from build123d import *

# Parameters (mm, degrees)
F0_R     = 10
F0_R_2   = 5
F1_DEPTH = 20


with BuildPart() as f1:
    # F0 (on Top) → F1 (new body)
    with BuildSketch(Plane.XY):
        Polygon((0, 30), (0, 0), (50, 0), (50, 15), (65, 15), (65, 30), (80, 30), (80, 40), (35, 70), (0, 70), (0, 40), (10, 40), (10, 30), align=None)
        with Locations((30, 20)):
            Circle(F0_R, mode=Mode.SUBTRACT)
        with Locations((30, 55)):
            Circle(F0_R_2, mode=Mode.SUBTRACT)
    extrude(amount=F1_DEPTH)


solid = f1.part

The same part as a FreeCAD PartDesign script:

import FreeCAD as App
import Part
import Sketcher
from FreeCAD import Vector

doc = App.newDocument("Part")
body = doc.addObject("PartDesign::Body", "Body")

# Sketch on XY plane
sketch1 = doc.addObject("Sketcher::SketchObject", "Sketch")
body.addObject(sketch1)
sketch1.AttachmentSupport = (doc.XY_Plane, [""])
sketch1.MapMode = "FlatFace"
sketch1.addGeometry(Part.LineSegment(Vector(0, 30, 0), Vector(0, 0, 0)), False)
sketch1.addGeometry(Part.LineSegment(Vector(0, 0, 0), Vector(50, 0, 0)), False)
sketch1.addGeometry(Part.LineSegment(Vector(50, 0, 0), Vector(50, 15, 0)), False)
sketch1.addGeometry(Part.LineSegment(Vector(50, 15, 0), Vector(65, 15, 0)), False)
sketch1.addGeometry(Part.LineSegment(Vector(65, 15, 0), Vector(65, 30, 0)), False)
sketch1.addGeometry(Part.LineSegment(Vector(65, 30, 0), Vector(80, 30, 0)), False)
sketch1.addGeometry(Part.LineSegment(Vector(80, 30, 0), Vector(80, 40, 0)), False)
sketch1.addGeometry(Part.LineSegment(Vector(80, 40, 0), Vector(35, 70, 0)), False)
sketch1.addGeometry(Part.LineSegment(Vector(35, 70, 0), Vector(0, 70, 0)), False)
sketch1.addGeometry(Part.LineSegment(Vector(0, 70, 0), Vector(0, 40, 0)), False)
sketch1.addGeometry(Part.LineSegment(Vector(0, 40, 0), Vector(10, 40, 0)), False)
sketch1.addGeometry(Part.LineSegment(Vector(10, 40, 0), Vector(10, 30, 0)), False)
sketch1.addGeometry(Part.LineSegment(Vector(10, 30, 0), Vector(0, 30, 0)), False)
sketch1.addGeometry(Part.Circle(Vector(30, 20, 0), Vector(0, 0, 1), 10), False)
sketch1.addGeometry(Part.Circle(Vector(30, 55, 0), Vector(0, 0, 1), 5), False)
sketch1.addConstraint(Sketcher.Constraint("Coincident", 0, 2, 1, 1))
sketch1.addConstraint(Sketcher.Constraint("Coincident", 1, 2, 2, 1))
sketch1.addConstraint(Sketcher.Constraint("Coincident", 2, 2, 3, 1))
sketch1.addConstraint(Sketcher.Constraint("Coincident", 3, 2, 4, 1))
sketch1.addConstraint(Sketcher.Constraint("Coincident", 4, 2, 5, 1))
sketch1.addConstraint(Sketcher.Constraint("Coincident", 5, 2, 6, 1))
sketch1.addConstraint(Sketcher.Constraint("Coincident", 6, 2, 7, 1))
sketch1.addConstraint(Sketcher.Constraint("Coincident", 7, 2, 8, 1))
sketch1.addConstraint(Sketcher.Constraint("Coincident", 8, 2, 9, 1))
sketch1.addConstraint(Sketcher.Constraint("Coincident", 9, 2, 10, 1))
sketch1.addConstraint(Sketcher.Constraint("Coincident", 10, 2, 11, 1))
sketch1.addConstraint(Sketcher.Constraint("Coincident", 11, 2, 12, 1))
sketch1.addConstraint(Sketcher.Constraint("Coincident", 12, 2, 0, 1))
sketch1.addConstraint(Sketcher.Constraint("Vertical", 0))
sketch1.addConstraint(Sketcher.Constraint("Horizontal", 1))
sketch1.addConstraint(Sketcher.Constraint("Vertical", 2))
sketch1.addConstraint(Sketcher.Constraint("Horizontal", 3))
sketch1.addConstraint(Sketcher.Constraint("Vertical", 4))
sketch1.addConstraint(Sketcher.Constraint("Horizontal", 5))
sketch1.addConstraint(Sketcher.Constraint("Vertical", 6))
sketch1.addConstraint(Sketcher.Constraint("Horizontal", 8))
sketch1.addConstraint(Sketcher.Constraint("Vertical", 9))
sketch1.addConstraint(Sketcher.Constraint("Horizontal", 10))
sketch1.addConstraint(Sketcher.Constraint("Vertical", 11))
sketch1.addConstraint(Sketcher.Constraint("Horizontal", 12))
sketch1.addConstraint(Sketcher.Constraint("Coincident", 0, 2, -1, 1))
sketch1.addConstraint(Sketcher.Constraint("PointOnObject", 8, 2, -2))
sketch1.addConstraint(Sketcher.Constraint("Horizontal", 6, 2, 9, 2))
sketch1.addConstraint(Sketcher.Constraint("Horizontal", 5, 2, 11, 2))
sketch1.addConstraint(Sketcher.Constraint("Vertical", 13, 3, 14, 3))
sketch1.addConstraint(Sketcher.Constraint("Equal", 3, 5))
sketch1.addConstraint(Sketcher.Constraint("Equal", 5, 2))
sketch1.addConstraint(Sketcher.Constraint("Equal", 2, 4))
sketch1.addConstraint(Sketcher.Constraint("Equal", 12, 6))
sketch1.addConstraint(Sketcher.Constraint("Equal", 0, 9))
sketch1.addConstraint(Sketcher.Constraint("Diameter", 13, 20.0))
sketch1.addConstraint(Sketcher.Constraint("Diameter", 14, 10.0))
sketch1.addConstraint(Sketcher.Constraint("DistanceX", 1, 1, 1, 2, 50.0))
sketch1.addConstraint(Sketcher.Constraint("DistanceX", 3, 1, 3, 2, 15.0))
sketch1.addConstraint(Sketcher.Constraint("DistanceX", 8, 2, 8, 1, 35.0))
sketch1.addConstraint(Sketcher.Constraint("DistanceX", 10, 1, 10, 2, 10.0))
sketch1.addConstraint(Sketcher.Constraint("DistanceX", -1, 1, 13, 3, 30.0))
sketch1.addConstraint(Sketcher.Constraint("DistanceY", -1, 1, 13, 3, 20.0))
sketch1.addConstraint(Sketcher.Constraint("DistanceY", -1, 1, 14, 3, 55.0))
pad1 = doc.addObject("PartDesign::Pad", "Pad")
body.addObject(pad1)
pad1.Profile = sketch1
pad1.Length = 20

doc.recompute()
